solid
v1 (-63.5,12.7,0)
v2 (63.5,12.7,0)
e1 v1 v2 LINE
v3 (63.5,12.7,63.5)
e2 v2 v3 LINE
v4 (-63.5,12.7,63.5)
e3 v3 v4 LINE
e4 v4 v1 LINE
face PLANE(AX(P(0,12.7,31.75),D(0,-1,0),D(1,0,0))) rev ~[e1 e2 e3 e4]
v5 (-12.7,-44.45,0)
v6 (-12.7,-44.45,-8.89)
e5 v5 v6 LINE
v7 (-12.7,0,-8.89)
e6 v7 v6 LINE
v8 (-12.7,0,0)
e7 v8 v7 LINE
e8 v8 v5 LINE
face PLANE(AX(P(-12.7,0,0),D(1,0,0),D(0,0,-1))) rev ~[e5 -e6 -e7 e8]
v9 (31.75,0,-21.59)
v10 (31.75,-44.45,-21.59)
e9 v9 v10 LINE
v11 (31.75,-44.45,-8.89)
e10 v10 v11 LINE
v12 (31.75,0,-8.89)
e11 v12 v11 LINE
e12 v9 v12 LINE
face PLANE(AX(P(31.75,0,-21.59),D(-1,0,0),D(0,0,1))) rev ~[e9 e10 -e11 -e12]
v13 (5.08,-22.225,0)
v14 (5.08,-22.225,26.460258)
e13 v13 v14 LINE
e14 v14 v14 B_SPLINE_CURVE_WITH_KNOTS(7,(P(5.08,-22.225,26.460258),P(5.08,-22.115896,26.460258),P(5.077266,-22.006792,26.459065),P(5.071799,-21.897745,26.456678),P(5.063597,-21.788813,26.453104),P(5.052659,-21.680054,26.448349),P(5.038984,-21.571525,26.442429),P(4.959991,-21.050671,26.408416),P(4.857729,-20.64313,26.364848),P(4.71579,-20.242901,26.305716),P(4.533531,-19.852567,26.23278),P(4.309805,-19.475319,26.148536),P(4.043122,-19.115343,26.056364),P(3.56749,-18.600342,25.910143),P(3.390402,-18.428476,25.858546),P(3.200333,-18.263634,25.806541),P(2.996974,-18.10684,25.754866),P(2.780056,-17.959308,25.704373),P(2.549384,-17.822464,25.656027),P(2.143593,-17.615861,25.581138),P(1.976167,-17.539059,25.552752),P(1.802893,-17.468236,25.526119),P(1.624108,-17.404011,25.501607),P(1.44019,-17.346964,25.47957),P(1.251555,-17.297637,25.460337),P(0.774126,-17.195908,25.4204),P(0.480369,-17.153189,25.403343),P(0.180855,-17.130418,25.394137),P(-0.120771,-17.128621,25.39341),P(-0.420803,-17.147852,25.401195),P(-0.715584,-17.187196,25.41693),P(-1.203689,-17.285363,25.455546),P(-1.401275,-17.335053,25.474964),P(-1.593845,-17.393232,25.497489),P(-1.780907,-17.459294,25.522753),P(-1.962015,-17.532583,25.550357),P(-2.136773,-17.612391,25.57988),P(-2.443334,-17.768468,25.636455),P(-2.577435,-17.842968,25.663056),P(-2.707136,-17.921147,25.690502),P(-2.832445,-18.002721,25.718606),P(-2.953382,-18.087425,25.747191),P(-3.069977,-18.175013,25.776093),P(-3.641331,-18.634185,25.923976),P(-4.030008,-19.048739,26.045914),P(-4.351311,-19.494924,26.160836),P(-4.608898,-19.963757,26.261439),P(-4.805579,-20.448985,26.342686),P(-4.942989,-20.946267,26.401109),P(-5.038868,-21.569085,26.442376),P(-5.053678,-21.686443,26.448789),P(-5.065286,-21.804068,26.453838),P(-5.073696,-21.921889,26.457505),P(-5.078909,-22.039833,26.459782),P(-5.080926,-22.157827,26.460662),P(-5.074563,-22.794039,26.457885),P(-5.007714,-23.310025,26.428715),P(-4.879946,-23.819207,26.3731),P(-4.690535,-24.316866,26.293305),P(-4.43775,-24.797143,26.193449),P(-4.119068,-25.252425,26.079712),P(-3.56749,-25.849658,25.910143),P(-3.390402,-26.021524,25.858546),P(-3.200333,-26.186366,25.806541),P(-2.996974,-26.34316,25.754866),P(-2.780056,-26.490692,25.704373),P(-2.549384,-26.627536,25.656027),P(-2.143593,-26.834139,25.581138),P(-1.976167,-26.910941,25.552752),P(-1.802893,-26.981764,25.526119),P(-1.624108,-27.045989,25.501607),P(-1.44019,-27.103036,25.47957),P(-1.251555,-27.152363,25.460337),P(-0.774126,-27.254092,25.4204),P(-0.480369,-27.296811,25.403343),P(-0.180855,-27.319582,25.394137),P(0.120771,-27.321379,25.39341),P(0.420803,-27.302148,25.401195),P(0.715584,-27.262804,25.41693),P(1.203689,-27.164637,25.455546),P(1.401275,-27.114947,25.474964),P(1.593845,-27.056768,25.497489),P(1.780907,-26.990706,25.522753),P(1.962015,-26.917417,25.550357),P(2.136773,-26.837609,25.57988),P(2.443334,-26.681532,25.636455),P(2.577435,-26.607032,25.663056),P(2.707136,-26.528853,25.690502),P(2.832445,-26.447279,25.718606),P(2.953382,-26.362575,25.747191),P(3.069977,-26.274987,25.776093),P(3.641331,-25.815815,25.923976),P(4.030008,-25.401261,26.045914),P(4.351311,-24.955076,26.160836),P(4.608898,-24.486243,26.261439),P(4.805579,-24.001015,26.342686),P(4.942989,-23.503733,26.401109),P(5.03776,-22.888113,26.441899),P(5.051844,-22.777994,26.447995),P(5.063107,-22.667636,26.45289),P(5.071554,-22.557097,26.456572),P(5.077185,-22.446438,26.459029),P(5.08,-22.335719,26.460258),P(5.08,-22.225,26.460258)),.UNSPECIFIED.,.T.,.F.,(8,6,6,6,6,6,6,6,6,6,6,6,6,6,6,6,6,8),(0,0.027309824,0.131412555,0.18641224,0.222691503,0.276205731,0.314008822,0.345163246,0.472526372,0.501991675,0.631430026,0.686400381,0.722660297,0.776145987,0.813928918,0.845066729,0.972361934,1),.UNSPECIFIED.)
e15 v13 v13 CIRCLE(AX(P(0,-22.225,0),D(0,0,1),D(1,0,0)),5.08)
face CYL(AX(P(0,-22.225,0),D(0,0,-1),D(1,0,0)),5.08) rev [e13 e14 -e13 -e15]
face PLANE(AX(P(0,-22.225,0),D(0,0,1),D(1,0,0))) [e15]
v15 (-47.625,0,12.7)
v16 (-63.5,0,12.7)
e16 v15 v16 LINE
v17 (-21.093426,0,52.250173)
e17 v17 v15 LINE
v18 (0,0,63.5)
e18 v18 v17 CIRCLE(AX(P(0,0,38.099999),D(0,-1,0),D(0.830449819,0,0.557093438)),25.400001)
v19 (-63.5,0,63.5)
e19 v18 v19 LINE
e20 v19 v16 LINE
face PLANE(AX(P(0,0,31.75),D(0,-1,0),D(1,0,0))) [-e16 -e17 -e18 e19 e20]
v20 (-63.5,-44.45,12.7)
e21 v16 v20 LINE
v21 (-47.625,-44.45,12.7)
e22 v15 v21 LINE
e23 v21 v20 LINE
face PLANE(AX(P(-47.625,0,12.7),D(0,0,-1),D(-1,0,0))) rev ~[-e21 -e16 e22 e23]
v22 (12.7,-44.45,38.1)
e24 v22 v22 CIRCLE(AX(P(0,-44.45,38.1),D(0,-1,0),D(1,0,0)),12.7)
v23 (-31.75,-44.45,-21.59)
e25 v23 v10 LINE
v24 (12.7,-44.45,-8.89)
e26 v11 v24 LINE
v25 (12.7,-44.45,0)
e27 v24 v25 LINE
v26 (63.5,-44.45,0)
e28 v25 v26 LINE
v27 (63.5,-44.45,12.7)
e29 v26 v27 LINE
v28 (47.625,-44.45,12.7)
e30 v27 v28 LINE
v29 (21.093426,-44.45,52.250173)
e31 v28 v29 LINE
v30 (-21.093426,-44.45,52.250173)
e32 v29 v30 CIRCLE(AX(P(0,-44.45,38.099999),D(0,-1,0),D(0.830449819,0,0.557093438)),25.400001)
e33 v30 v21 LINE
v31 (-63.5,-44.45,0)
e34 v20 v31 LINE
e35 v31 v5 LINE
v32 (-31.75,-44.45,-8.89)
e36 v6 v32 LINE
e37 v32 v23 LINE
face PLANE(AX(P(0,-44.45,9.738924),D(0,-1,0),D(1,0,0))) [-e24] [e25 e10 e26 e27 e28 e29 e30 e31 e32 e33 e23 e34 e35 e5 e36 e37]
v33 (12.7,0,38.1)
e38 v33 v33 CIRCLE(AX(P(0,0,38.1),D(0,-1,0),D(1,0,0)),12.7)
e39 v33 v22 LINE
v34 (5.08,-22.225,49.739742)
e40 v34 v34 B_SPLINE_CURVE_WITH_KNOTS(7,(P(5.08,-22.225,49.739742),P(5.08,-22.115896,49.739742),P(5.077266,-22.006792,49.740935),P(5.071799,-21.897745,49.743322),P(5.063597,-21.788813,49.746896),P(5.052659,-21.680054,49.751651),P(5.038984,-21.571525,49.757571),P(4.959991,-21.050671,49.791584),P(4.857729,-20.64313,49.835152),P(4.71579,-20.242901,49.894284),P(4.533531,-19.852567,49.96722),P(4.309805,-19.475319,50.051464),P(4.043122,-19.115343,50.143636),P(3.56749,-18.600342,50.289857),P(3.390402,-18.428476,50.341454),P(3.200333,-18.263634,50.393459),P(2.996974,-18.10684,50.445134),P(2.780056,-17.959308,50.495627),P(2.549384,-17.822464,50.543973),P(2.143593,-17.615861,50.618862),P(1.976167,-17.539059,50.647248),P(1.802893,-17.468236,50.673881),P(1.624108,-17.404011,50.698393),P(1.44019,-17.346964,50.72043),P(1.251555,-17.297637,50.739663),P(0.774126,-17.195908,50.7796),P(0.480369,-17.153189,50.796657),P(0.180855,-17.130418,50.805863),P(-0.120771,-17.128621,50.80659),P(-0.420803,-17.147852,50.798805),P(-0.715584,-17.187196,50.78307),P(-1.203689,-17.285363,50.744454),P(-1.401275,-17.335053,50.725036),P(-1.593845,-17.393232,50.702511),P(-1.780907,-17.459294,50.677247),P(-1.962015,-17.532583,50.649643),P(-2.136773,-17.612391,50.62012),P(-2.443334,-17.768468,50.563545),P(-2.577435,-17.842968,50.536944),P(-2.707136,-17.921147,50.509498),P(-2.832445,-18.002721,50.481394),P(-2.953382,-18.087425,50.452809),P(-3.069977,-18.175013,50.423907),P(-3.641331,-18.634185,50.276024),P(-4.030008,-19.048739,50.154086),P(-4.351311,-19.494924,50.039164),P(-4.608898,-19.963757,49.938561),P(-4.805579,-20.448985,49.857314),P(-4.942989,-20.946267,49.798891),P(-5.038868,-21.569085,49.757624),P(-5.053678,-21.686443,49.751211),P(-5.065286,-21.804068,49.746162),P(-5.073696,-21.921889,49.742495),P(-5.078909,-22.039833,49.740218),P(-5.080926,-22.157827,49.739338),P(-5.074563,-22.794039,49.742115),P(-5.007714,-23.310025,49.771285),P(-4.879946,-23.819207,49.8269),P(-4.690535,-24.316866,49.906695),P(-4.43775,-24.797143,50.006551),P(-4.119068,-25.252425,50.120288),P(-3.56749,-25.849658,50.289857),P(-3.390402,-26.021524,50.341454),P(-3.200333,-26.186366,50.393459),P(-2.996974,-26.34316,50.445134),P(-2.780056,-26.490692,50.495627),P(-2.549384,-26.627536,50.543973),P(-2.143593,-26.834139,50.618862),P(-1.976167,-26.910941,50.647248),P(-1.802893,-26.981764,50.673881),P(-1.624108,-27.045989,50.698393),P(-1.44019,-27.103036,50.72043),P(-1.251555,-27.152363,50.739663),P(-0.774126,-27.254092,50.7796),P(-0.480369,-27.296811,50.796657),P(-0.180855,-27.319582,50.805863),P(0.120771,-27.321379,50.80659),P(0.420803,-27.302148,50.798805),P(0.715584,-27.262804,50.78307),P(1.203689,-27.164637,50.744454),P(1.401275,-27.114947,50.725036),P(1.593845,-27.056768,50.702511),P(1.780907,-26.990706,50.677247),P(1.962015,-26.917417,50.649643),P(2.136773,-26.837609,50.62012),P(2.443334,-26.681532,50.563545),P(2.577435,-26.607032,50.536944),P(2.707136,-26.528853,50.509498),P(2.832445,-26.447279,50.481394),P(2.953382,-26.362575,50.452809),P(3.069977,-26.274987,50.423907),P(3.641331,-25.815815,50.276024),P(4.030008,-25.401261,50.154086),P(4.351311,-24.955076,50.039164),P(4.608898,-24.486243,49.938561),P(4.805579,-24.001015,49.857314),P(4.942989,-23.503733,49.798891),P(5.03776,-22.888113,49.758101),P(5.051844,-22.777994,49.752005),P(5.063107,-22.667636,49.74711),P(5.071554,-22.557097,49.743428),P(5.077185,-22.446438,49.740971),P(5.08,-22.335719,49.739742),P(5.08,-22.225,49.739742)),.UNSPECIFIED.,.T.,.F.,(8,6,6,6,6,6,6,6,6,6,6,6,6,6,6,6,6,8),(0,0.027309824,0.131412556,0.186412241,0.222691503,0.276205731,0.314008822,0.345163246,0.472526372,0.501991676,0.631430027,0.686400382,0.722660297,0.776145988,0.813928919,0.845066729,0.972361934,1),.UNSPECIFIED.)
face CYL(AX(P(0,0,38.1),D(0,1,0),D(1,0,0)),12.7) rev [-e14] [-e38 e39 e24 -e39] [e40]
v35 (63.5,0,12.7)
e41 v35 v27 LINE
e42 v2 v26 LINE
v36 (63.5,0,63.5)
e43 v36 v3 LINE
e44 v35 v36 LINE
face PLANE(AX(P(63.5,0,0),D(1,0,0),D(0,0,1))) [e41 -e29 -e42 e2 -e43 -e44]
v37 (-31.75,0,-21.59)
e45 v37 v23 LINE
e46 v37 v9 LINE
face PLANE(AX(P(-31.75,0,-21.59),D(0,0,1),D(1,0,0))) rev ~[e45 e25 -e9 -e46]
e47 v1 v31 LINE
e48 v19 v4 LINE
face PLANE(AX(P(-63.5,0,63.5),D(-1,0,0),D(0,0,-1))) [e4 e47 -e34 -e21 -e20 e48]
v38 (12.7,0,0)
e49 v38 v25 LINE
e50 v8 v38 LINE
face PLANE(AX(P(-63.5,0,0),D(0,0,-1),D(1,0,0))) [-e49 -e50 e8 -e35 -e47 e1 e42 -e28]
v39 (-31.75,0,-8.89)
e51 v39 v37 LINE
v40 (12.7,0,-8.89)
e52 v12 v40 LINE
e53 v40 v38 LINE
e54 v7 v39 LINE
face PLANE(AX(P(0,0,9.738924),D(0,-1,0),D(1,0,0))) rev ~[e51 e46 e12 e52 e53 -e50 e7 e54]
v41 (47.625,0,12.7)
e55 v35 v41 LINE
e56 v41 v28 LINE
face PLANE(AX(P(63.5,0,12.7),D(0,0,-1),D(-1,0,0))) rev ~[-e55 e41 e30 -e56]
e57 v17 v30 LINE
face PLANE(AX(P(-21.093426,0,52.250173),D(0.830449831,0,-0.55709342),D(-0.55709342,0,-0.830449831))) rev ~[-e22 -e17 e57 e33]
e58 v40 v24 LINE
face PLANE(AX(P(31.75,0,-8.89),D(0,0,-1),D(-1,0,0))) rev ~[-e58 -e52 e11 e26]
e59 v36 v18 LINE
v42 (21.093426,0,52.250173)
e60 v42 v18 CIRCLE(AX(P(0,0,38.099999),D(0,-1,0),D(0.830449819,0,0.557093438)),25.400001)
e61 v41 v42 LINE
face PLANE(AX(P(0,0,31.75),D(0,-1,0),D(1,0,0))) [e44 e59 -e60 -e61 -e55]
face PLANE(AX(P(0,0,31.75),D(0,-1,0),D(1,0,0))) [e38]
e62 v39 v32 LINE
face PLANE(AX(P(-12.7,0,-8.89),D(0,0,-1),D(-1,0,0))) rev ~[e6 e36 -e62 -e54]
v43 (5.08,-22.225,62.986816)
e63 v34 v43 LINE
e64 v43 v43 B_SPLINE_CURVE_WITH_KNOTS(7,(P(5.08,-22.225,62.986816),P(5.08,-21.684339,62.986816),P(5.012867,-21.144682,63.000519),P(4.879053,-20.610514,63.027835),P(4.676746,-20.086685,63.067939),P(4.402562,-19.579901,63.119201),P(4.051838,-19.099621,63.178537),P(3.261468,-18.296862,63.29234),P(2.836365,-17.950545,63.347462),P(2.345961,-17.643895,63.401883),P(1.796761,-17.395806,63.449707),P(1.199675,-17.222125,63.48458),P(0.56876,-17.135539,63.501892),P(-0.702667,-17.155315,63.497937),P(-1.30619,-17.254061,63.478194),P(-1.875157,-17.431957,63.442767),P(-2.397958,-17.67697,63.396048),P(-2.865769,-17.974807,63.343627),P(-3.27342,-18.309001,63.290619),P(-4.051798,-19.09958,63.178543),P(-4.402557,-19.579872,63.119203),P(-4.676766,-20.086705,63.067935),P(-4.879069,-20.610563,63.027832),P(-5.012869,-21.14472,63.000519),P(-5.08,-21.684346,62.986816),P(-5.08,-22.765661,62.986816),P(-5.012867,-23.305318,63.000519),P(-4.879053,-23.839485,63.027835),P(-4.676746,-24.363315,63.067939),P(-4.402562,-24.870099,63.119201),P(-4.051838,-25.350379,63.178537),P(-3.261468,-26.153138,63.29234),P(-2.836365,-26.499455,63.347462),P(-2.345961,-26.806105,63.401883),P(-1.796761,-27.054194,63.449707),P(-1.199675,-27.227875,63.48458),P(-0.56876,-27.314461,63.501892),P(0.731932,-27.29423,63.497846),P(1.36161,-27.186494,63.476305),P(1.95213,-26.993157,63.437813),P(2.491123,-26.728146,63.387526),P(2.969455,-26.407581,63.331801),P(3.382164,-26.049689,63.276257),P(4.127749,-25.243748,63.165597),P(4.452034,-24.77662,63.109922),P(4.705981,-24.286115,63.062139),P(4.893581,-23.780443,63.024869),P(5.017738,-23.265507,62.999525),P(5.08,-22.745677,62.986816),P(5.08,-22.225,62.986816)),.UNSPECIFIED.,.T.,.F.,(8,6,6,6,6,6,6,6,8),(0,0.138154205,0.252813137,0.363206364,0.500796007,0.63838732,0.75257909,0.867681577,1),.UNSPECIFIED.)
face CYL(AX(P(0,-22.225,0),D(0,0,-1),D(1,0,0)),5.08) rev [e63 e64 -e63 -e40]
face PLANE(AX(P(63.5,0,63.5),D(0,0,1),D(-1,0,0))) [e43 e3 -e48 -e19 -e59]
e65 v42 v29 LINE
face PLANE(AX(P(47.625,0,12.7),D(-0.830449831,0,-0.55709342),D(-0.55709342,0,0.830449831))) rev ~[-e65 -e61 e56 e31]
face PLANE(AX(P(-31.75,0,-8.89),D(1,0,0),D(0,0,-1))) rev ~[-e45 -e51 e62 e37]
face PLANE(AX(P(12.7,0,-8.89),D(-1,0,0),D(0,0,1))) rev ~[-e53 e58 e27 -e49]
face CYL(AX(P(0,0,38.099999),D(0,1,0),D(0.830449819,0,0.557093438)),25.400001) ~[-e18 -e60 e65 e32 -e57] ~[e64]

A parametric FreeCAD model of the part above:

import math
import FreeCAD as App
import Part
import Sketcher
from FreeCAD import Vector
Q = App.Units.Quantity

doc = App.newDocument("Part")
body = doc.addObject("PartDesign::Body", "Body")

# Sketch on XZ plane
sketch1 = doc.addObject("Sketcher::SketchObject", "Sketch")
body.addObject(sketch1)
sketch1.AttachmentSupport = (doc.XZ_Plane, [""])
sketch1.MapMode = "FlatFace"
sketch1.addGeometry(Part.LineSegment(Vector(-32, -9, 0), Vector(-32, -22, 0)), False)
sketch1.addGeometry(Part.LineSegment(Vector(-32, -22, 0), Vector(32, -22, 0)), False)
sketch1.addGeometry(Part.LineSegment(Vector(32, -22, 0), Vector(32, -9, 0)), False)
sketch1.addGeometry(Part.LineSegment(Vector(32, -9, 0), Vector(13, -9, 0)), False)
sketch1.addGeometry(Part.LineSegment(Vector(13, -9, 0), Vector(13, 0, 0)), False)
sketch1.addGeometry(Part.LineSegment(Vector(13, 0, 0), Vector(64, 0, 0)), False)
sketch1.addGeometry(Part.LineSegment(Vector(64, 0, 0), Vector(64, 13, 0)), False)
sketch1.addGeometry(Part.LineSegment(Vector(64, 13, 0), Vector(48, 13, 0)), False)
sketch1.addGeometry(Part.LineSegment(Vector(48, 13, 0), Vector(21, 52, 0)), False)
sketch1.addGeometry(Part.ArcOfCircle(Part.Circle(Vector(0, 38, 0), Vector(0, 0, 1), 25), math.radians(34), math.radians(146)), False)
sketch1.addGeometry(Part.LineSegment(Vector(-21, 52, 0), Vector(-48, 13, 0)), False)
sketch1.addGeometry(Part.LineSegment(Vector(-48, 13, 0), Vector(-64, 13, 0)), False)
sketch1.addGeometry(Part.LineSegment(Vector(-64, 13, 0), Vector(-64, 0, 0)), False)
sketch1.addGeometry(Part.LineSegment(Vector(-64, 0, 0), Vector(-13, 0, 0)), False)
sketch1.addGeometry(Part.LineSegment(Vector(-13, 0, 0), Vector(-13, -9, 0)), False)
sketch1.addGeometry(Part.LineSegment(Vector(-13, -9, 0), Vector(-32, -9, 0)), False)
sketch1.addGeometry(Part.Circle(Vector(0, 38, 0), Vector(0, 0, 1), 13), False)
sketch1.addConstraint(Sketcher.Constraint("Coincident", 0, 2, 1, 1))
sketch1.addConstraint(Sketcher.Constraint("Coincident", 1, 2, 2, 1))
sketch1.addConstraint(Sketcher.Constraint("Coincident", 2, 2, 3, 1))
sketch1.addConstraint(Sketcher.Constraint("Coincident", 3, 2, 4, 1))
sketch1.addConstraint(Sketcher.Constraint("Coincident", 4, 2, 5, 1))
sketch1.addConstraint(Sketcher.Constraint("Coincident", 5, 2, 6, 1))
sketch1.addConstraint(Sketcher.Constraint("Coincident", 6, 2, 7, 1))
sketch1.addConstraint(Sketcher.Constraint("Coincident", 7, 2, 8, 1))
sketch1.addConstraint(Sketcher.Constraint("Tangent", 8, 2, 9, 1))
sketch1.addConstraint(Sketcher.Constraint("Tangent", 9, 2, 10, 1))
sketch1.addConstraint(Sketcher.Constraint("Coincident", 10, 2, 11, 1))
sketch1.addConstraint(Sketcher.Constraint("Coincident", 11, 2, 12, 1))
sketch1.addConstraint(Sketcher.Constraint("Coincident", 12, 2, 13, 1))
sketch1.addConstraint(Sketcher.Constraint("Coincident", 13, 2, 14, 1))
sketch1.addConstraint(Sketcher.Constraint("Coincident", 14, 2, 15, 1))
sketch1.addConstraint(Sketcher.Constraint("Coincident", 15, 2, 0, 1))
sketch1.addConstraint(Sketcher.Constraint("Vertical", 0))
sketch1.addConstraint(Sketcher.Constraint("Horizontal", 1))
sketch1.addConstraint(Sketcher.Constraint("Vertical", 2))
sketch1.addConstraint(Sketcher.Constraint("Horizontal", 3))
sketch1.addConstraint(Sketcher.Constraint("Vertical", 4))
sketch1.addConstraint(Sketcher.Constraint("Horizontal", 5))
sketch1.addConstraint(Sketcher.Constraint("Vertical", 6))
sketch1.addConstraint(Sketcher.Constraint("Horizontal", 7))
sketch1.addConstraint(Sketcher.Constraint("Horizontal", 11))
sketch1.addConstraint(Sketcher.Constraint("Vertical", 12))
sketch1.addConstraint(Sketcher.Constraint("Horizontal", 13))
sketch1.addConstraint(Sketcher.Constraint("Vertical", 14))
sketch1.addConstraint(Sketcher.Constraint("Horizontal", 15))
sketch1.addConstraint(Sketcher.Constraint("Coincident", 16, 3, 9, 3))
sketch1.addConstraint(Sketcher.Constraint("Symmetric", 5, 2, 12, 2, -1, 1))
sketch1.addConstraint(Sketcher.Constraint("Symmetric", 8, 2, 9, 2, -2))
sketch1.addConstraint(Sketcher.Constraint("Symmetric", 4, 2, 13, 2, -2))
sketch1.addConstraint(Sketcher.Constraint("Symmetric", 2, 2, 15, 2, -2))
sketch1.addConstraint(Sketcher.Constraint("Horizontal", 7, 2, 10, 2))
sketch1.addConstraint(Sketcher.Constraint("Equal", 2, 6))
sketch1.addConstraint(Sketcher.Constraint("Diameter", 16, Q("1 in")))
sketch1.addConstraint(Sketcher.Constraint("Radius", 9, Q("1 in")))
sketch1.addConstraint(Sketcher.Constraint("DistanceX", 5, 1, 5, 2, Q("2 in")))
sketch1.addConstraint(Sketcher.Constraint("DistanceX", 1, 1, 1, 2, Q("2.5 in")))
sketch1.addConstraint(Sketcher.Constraint("DistanceY", 0, 2, 0, 1, Q("0.5 in")))
sketch1.addConstraint(Sketcher.Constraint("DistanceY", 10, 2, 9, 3, Q("1 in")))
sketch1.addConstraint(Sketcher.Constraint("DistanceX", 13, 2, 4, 2, Q("1 in")))
sketch1.addConstraint(Sketcher.Constraint("DistanceY", 4, 1, 4, 2, Q("0.35 in")))
sketch1.addConstraint(Sketcher.Constraint("DistanceX", 7, 2, 7, 1, Q("0.625 in")))
pad1 = doc.addObject("PartDesign::Pad", "Pad")
body.addObject(pad1)
pad1.Profile = sketch1
pad1.Length = Q("1.75 in")

# Sketch on XZ plane
sketch2 = doc.addObject("Sketcher::SketchObject", "Sketch001")
body.addObject(sketch2)
sketch2.AttachmentSupport = (doc.XZ_Plane, [""])
sketch2.MapMode = "FlatFace"
sketch2.addGeometry(Part.LineSegment(Vector(-64, 64, 0), Vector(-64, 0, 0)), False)
sketch2.addGeometry(Part.LineSegment(Vector(-64, 0, 0), Vector(64, 0, 0)), False)
sketch2.addGeometry(Part.LineSegment(Vector(64, 0, 0), Vector(64, 64, 0)), False)
sketch2.addGeometry(Part.LineSegment(Vector(64, 64, 0), Vector(-64, 64, 0)), False)
sketch2.addConstraint(Sketcher.Constraint("Coincident", 0, 2, 1, 1))
sketch2.addConstraint(Sketcher.Constraint("Coincident", 1, 2, 2, 1))
sketch2.addConstraint(Sketcher.Constraint("Coincident", 2, 2, 3, 1))
sketch2.addConstraint(Sketcher.Constraint("Coincident", 3, 2, 0, 1))
sketch2.addConstraint(Sketcher.Constraint("Vertical", 0))
sketch2.addConstraint(Sketcher.Constraint("Horizontal", 1))
sketch2.addConstraint(Sketcher.Constraint("Vertical", 2))
sketch2.addConstraint(Sketcher.Constraint("Horizontal", 3))
sketch2.addConstraint(Sketcher.Constraint("Symmetric", 0, 2, 1, 2, -1, 1))
sketch2.addConstraint(Sketcher.Constraint("DistanceX", 1, 1, 1, 2, Q("5 in")))
sketch2.addConstraint(Sketcher.Constraint("DistanceY", 0, 2, 0, 1, Q("2.5 in")))
pad2 = doc.addObject("PartDesign::Pad", "Pad001")
body.addObject(pad2)
pad2.Profile = sketch2
pad2.Length = Q("0.5 in")
pad2.Reversed = True

# Sketch on XY plane
sketch3 = doc.addObject("Sketcher::SketchObject", "Sketch002")
body.addObject(sketch3)
sketch3.AttachmentSupport = (doc.XY_Plane, [""])
sketch3.MapMode = "FlatFace"
sketch3.addGeometry(Part.Circle(Vector(0, -22, 0), Vector(0, 0, 1), 5), False)
sketch3.addConstraint(Sketcher.Constraint("PointOnObject", 0, 3, -2))
sketch3.addConstraint(Sketcher.Constraint("Diameter", 0, Q("0.4 in")))
sketch3.addConstraint(Sketcher.Constraint("DistanceY", 0, 3, -1, 1, Q("0.875 in")))
pocket1 = doc.addObject("PartDesign::Pocket", "Pocket")
body.addObject(pocket1)
pocket1.Profile = sketch3
pocket1.Type = "ThroughAll"
pocket1.Reversed = True

doc.recompute()
